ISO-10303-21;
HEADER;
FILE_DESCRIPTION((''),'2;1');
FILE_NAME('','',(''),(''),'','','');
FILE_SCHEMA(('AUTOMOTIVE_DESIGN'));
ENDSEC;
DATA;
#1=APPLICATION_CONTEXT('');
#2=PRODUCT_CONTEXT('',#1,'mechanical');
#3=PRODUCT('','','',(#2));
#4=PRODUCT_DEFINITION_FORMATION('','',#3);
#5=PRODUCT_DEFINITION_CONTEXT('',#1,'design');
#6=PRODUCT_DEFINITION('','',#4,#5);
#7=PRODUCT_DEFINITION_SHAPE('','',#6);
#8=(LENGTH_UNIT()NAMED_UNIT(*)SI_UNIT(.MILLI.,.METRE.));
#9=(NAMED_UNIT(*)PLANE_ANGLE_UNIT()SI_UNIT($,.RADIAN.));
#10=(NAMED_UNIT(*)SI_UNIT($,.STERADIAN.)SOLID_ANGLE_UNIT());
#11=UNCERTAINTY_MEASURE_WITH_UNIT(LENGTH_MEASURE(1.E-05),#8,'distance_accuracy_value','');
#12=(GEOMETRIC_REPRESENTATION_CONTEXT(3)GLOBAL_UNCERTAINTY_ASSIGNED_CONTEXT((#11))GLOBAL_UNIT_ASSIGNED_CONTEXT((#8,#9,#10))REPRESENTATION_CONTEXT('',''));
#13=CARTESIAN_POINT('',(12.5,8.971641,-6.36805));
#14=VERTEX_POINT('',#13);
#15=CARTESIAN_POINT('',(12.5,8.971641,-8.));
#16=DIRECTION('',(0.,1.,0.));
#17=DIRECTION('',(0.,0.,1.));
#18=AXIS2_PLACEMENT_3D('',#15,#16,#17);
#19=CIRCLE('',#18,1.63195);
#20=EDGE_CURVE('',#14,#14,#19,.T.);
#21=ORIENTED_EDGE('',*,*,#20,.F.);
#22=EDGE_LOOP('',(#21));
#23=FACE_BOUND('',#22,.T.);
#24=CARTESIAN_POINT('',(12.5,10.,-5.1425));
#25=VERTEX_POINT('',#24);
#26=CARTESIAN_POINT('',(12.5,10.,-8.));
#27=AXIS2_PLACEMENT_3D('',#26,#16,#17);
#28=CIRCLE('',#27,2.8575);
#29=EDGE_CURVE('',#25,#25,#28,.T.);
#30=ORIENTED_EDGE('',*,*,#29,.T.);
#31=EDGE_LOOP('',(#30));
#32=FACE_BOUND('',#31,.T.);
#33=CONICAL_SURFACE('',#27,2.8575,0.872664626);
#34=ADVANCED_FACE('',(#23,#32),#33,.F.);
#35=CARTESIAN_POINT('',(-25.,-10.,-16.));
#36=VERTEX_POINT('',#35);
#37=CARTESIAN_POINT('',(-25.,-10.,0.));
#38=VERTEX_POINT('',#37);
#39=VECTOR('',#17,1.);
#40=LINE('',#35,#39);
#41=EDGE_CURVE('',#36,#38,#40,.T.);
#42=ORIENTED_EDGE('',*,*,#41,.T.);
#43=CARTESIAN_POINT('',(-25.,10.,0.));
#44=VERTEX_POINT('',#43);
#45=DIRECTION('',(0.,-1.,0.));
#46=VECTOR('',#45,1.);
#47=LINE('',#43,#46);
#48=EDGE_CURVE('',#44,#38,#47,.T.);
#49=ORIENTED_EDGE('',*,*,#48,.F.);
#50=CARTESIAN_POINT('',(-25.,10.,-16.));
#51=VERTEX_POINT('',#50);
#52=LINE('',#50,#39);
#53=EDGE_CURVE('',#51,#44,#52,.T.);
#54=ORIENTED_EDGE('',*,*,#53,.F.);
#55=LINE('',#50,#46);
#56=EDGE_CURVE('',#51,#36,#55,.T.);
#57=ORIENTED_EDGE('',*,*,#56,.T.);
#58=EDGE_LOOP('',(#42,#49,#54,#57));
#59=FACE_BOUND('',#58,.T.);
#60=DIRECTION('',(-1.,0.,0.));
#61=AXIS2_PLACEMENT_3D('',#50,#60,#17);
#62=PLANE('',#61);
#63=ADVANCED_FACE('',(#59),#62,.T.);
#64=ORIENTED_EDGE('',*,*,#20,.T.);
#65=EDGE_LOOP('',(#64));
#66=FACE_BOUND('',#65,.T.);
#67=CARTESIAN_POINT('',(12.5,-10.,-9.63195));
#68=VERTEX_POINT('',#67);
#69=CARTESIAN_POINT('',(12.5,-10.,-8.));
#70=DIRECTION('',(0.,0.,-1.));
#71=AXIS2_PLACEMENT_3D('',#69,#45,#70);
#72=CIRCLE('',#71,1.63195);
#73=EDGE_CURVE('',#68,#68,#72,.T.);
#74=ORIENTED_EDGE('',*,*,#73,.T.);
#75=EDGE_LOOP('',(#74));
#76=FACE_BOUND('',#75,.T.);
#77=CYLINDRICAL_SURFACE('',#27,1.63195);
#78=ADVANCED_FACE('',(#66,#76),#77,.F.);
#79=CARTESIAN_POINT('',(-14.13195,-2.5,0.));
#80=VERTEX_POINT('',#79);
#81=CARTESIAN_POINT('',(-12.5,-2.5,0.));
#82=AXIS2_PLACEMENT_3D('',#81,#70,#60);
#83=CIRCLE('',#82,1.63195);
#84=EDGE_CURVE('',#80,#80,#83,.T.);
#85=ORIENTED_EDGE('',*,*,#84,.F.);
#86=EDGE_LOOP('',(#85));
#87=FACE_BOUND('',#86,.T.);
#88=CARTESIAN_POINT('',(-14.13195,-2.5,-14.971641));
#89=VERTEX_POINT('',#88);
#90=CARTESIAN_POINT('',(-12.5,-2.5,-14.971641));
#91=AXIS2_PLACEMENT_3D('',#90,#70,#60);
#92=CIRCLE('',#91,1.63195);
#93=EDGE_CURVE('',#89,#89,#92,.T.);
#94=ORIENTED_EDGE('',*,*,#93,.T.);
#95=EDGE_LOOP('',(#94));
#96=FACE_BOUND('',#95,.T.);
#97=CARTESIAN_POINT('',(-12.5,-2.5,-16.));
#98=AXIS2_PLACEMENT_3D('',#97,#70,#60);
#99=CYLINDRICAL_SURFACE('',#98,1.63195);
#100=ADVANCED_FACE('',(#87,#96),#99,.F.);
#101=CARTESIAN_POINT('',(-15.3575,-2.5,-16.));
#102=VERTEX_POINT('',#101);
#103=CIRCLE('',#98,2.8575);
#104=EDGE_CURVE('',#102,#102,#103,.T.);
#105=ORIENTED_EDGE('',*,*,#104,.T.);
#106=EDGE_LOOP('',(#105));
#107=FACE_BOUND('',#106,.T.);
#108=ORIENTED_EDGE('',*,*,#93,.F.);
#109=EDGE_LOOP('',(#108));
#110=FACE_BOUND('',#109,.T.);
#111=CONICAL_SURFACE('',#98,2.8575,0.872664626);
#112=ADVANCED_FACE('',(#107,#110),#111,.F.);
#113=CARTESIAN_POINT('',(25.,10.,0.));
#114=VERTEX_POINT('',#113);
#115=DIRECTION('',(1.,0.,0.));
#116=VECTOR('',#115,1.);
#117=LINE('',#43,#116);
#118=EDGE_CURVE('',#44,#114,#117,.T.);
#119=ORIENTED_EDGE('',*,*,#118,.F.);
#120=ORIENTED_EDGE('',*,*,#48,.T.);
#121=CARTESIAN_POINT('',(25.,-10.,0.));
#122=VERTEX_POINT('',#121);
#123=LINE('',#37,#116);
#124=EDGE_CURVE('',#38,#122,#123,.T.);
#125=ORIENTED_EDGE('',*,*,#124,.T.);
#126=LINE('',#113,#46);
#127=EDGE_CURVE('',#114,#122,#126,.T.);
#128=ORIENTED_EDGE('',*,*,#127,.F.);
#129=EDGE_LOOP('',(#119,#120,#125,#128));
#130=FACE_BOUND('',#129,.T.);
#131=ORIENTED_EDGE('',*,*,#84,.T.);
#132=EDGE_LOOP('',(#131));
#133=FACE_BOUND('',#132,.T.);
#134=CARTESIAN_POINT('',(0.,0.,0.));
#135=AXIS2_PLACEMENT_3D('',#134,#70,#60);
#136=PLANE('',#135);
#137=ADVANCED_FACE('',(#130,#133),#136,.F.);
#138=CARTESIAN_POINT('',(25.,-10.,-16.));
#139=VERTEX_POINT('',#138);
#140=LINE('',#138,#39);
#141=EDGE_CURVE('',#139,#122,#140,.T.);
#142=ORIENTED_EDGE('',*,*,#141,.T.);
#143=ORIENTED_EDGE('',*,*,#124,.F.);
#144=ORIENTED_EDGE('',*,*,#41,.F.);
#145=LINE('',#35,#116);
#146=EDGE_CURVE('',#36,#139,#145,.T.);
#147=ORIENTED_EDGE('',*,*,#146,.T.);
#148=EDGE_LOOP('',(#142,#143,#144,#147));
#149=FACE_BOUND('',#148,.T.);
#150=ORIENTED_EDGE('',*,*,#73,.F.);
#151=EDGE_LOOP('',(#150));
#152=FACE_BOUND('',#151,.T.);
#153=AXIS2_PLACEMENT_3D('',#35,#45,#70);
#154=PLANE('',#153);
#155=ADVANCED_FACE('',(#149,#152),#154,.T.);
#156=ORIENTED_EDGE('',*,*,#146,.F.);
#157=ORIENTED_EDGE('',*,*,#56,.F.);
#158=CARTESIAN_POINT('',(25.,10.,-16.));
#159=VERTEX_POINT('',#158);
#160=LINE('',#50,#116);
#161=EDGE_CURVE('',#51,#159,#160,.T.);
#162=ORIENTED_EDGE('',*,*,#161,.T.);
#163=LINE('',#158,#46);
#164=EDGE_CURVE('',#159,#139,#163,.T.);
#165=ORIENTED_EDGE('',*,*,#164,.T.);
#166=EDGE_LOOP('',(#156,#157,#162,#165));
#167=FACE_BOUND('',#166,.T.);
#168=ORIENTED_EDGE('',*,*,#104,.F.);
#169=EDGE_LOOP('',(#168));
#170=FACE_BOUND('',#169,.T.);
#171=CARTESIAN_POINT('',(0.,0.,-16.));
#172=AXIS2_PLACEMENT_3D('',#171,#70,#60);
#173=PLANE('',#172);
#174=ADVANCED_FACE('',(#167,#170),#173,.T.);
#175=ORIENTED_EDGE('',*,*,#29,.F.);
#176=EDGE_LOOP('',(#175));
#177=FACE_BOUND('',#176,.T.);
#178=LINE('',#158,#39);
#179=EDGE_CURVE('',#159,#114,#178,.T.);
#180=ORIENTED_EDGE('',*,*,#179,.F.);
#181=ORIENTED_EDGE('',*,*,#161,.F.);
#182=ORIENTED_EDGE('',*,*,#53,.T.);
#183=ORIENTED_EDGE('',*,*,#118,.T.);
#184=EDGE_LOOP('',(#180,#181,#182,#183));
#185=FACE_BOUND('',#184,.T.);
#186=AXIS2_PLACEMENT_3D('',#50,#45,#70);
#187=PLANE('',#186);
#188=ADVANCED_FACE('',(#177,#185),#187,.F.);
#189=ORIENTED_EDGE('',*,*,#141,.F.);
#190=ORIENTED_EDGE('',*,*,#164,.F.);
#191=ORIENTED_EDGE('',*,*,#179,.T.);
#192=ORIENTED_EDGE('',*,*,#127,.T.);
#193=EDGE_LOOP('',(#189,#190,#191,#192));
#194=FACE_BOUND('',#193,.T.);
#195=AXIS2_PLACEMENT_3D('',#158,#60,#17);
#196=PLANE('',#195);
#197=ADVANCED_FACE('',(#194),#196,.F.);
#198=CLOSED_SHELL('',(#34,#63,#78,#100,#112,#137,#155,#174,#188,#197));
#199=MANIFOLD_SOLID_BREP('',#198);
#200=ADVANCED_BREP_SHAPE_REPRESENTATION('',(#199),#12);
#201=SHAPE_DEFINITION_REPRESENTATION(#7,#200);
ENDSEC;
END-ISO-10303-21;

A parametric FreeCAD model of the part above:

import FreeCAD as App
import Part
import Sketcher
Q = App.Units.Quantity

doc = App.newDocument("Part")
body = doc.addObject("PartDesign::Body", "Body")

# Sketch on XY plane
sketch1 = body.newObject("Sketcher::SketchObject", "Sketch")
sketch1.AttachmentSupport = (doc.getObject("XY_Plane"), [""])
sketch1.MapMode = "FlatFace"
sketch1.addGeometry([
    Part.LineSegment(App.Vector(-25, 10, 0), App.Vector(-25, -10, 0)),
    Part.LineSegment(App.Vector(-25, -10, 0), App.Vector(25, -10, 0)),
    Part.LineSegment(App.Vector(25, -10, 0), App.Vector(25, 10, 0)),
    Part.LineSegment(App.Vector(25, 10, 0), App.Vector(-25, 10, 0)),
], False)
sketch1.addConstraint([
    Sketcher.Constraint("Coincident", 0, 2, 1, 1),
    Sketcher.Constraint("Coincident", 1, 2, 2, 1),
    Sketcher.Constraint("Coincident", 2, 2, 3, 1),
    Sketcher.Constraint("Coincident", 3, 2, 0, 1),
    Sketcher.Constraint("Vertical", 0),
    Sketcher.Constraint("Horizontal", 1),
    Sketcher.Constraint("Vertical", 2),
    Sketcher.Constraint("Horizontal", 3),
    Sketcher.Constraint("Symmetric", 0, 2, 2, 2, -1, 1),
    Sketcher.Constraint("DistanceX", 1, 1, 1, 2, Q("50 mm")),
    Sketcher.Constraint("DistanceY", 0, 2, 0, 1, Q("20 mm")),
])
pad1 = body.newObject("PartDesign::Pad", "Pad")
pad1.Profile = sketch1
pad1.Length = 16
pad1.Reversed = True

# Sketch on XY plane
sketch2 = body.newObject("Sketcher::SketchObject", "Sketch001")
sketch2.AttachmentSupport = (doc.getObject("XY_Plane"), [""])
sketch2.MapMode = "FlatFace"
sketch2.AttachmentOffset = App.Placement(App.Vector(0, 0, -16), App.Rotation())
sketch2.addGeometry(Part.Circle(App.Vector(-12.5, -2.5, 0), App.Vector(0, 0, 1), 1.6), False)
sketch2.addConstraint([
    Sketcher.Constraint("Diameter", 0, Q("3.2639 mm")),
    Sketcher.Constraint("DistanceX", 0, 3, -1, 1, Q("12.5 mm")),
    Sketcher.Constraint("DistanceY", 0, 3, -1, 1, Q("2.5 mm")),
])
doc.recompute()
hole = body.newObject("PartDesign::Hole", "Hole")
hole.Profile = sketch2
hole.ThreadType = "None"
hole.Diameter = 3.2639
hole.DepthType = "Dimension"
hole.Depth = 16
hole.DrillPoint = "Flat"
hole.HoleCutType = "Countersink"
hole.HoleCutDiameter = 5.715
hole.HoleCutCountersinkAngle = 100
hole.Reversed = True

# Sketch on XZ plane
sketch3 = body.newObject("Sketcher::SketchObject", "Sketch002")
sketch3.AttachmentSupport = (doc.getObject("XZ_Plane"), [""])
sketch3.MapMode = "FlatFace"
sketch3.AttachmentOffset = App.Placement(App.Vector(0, 0, -10), App.Rotation())
sketch3.addGeometry(Part.Circle(App.Vector(12.5, -8, 0), App.Vector(0, 0, 1), 1.6), False)
sketch3.addConstraint([
    Sketcher.Constraint("DistanceY", 0, 3, -1, 1, Q("8 mm")),
    Sketcher.Constraint("Diameter", 0, Q("3.2639 mm")),
    Sketcher.Constraint("DistanceX", -1, 1, 0, 3, Q("12.5 mm")),
])
doc.recompute()
hole2 = body.newObject("PartDesign::Hole", "Hole001")
hole2.Profile = sketch3
hole2.ThreadType = "None"
hole2.Diameter = 3.2639
hole2.DepthType = "Dimension"
hole2.Depth = 20
hole2.DrillPoint = "Flat"
hole2.HoleCutType = "Countersink"
hole2.HoleCutDiameter = 5.715
hole2.HoleCutCountersinkAngle = 100
hole2.Reversed = True

doc.recompute()
